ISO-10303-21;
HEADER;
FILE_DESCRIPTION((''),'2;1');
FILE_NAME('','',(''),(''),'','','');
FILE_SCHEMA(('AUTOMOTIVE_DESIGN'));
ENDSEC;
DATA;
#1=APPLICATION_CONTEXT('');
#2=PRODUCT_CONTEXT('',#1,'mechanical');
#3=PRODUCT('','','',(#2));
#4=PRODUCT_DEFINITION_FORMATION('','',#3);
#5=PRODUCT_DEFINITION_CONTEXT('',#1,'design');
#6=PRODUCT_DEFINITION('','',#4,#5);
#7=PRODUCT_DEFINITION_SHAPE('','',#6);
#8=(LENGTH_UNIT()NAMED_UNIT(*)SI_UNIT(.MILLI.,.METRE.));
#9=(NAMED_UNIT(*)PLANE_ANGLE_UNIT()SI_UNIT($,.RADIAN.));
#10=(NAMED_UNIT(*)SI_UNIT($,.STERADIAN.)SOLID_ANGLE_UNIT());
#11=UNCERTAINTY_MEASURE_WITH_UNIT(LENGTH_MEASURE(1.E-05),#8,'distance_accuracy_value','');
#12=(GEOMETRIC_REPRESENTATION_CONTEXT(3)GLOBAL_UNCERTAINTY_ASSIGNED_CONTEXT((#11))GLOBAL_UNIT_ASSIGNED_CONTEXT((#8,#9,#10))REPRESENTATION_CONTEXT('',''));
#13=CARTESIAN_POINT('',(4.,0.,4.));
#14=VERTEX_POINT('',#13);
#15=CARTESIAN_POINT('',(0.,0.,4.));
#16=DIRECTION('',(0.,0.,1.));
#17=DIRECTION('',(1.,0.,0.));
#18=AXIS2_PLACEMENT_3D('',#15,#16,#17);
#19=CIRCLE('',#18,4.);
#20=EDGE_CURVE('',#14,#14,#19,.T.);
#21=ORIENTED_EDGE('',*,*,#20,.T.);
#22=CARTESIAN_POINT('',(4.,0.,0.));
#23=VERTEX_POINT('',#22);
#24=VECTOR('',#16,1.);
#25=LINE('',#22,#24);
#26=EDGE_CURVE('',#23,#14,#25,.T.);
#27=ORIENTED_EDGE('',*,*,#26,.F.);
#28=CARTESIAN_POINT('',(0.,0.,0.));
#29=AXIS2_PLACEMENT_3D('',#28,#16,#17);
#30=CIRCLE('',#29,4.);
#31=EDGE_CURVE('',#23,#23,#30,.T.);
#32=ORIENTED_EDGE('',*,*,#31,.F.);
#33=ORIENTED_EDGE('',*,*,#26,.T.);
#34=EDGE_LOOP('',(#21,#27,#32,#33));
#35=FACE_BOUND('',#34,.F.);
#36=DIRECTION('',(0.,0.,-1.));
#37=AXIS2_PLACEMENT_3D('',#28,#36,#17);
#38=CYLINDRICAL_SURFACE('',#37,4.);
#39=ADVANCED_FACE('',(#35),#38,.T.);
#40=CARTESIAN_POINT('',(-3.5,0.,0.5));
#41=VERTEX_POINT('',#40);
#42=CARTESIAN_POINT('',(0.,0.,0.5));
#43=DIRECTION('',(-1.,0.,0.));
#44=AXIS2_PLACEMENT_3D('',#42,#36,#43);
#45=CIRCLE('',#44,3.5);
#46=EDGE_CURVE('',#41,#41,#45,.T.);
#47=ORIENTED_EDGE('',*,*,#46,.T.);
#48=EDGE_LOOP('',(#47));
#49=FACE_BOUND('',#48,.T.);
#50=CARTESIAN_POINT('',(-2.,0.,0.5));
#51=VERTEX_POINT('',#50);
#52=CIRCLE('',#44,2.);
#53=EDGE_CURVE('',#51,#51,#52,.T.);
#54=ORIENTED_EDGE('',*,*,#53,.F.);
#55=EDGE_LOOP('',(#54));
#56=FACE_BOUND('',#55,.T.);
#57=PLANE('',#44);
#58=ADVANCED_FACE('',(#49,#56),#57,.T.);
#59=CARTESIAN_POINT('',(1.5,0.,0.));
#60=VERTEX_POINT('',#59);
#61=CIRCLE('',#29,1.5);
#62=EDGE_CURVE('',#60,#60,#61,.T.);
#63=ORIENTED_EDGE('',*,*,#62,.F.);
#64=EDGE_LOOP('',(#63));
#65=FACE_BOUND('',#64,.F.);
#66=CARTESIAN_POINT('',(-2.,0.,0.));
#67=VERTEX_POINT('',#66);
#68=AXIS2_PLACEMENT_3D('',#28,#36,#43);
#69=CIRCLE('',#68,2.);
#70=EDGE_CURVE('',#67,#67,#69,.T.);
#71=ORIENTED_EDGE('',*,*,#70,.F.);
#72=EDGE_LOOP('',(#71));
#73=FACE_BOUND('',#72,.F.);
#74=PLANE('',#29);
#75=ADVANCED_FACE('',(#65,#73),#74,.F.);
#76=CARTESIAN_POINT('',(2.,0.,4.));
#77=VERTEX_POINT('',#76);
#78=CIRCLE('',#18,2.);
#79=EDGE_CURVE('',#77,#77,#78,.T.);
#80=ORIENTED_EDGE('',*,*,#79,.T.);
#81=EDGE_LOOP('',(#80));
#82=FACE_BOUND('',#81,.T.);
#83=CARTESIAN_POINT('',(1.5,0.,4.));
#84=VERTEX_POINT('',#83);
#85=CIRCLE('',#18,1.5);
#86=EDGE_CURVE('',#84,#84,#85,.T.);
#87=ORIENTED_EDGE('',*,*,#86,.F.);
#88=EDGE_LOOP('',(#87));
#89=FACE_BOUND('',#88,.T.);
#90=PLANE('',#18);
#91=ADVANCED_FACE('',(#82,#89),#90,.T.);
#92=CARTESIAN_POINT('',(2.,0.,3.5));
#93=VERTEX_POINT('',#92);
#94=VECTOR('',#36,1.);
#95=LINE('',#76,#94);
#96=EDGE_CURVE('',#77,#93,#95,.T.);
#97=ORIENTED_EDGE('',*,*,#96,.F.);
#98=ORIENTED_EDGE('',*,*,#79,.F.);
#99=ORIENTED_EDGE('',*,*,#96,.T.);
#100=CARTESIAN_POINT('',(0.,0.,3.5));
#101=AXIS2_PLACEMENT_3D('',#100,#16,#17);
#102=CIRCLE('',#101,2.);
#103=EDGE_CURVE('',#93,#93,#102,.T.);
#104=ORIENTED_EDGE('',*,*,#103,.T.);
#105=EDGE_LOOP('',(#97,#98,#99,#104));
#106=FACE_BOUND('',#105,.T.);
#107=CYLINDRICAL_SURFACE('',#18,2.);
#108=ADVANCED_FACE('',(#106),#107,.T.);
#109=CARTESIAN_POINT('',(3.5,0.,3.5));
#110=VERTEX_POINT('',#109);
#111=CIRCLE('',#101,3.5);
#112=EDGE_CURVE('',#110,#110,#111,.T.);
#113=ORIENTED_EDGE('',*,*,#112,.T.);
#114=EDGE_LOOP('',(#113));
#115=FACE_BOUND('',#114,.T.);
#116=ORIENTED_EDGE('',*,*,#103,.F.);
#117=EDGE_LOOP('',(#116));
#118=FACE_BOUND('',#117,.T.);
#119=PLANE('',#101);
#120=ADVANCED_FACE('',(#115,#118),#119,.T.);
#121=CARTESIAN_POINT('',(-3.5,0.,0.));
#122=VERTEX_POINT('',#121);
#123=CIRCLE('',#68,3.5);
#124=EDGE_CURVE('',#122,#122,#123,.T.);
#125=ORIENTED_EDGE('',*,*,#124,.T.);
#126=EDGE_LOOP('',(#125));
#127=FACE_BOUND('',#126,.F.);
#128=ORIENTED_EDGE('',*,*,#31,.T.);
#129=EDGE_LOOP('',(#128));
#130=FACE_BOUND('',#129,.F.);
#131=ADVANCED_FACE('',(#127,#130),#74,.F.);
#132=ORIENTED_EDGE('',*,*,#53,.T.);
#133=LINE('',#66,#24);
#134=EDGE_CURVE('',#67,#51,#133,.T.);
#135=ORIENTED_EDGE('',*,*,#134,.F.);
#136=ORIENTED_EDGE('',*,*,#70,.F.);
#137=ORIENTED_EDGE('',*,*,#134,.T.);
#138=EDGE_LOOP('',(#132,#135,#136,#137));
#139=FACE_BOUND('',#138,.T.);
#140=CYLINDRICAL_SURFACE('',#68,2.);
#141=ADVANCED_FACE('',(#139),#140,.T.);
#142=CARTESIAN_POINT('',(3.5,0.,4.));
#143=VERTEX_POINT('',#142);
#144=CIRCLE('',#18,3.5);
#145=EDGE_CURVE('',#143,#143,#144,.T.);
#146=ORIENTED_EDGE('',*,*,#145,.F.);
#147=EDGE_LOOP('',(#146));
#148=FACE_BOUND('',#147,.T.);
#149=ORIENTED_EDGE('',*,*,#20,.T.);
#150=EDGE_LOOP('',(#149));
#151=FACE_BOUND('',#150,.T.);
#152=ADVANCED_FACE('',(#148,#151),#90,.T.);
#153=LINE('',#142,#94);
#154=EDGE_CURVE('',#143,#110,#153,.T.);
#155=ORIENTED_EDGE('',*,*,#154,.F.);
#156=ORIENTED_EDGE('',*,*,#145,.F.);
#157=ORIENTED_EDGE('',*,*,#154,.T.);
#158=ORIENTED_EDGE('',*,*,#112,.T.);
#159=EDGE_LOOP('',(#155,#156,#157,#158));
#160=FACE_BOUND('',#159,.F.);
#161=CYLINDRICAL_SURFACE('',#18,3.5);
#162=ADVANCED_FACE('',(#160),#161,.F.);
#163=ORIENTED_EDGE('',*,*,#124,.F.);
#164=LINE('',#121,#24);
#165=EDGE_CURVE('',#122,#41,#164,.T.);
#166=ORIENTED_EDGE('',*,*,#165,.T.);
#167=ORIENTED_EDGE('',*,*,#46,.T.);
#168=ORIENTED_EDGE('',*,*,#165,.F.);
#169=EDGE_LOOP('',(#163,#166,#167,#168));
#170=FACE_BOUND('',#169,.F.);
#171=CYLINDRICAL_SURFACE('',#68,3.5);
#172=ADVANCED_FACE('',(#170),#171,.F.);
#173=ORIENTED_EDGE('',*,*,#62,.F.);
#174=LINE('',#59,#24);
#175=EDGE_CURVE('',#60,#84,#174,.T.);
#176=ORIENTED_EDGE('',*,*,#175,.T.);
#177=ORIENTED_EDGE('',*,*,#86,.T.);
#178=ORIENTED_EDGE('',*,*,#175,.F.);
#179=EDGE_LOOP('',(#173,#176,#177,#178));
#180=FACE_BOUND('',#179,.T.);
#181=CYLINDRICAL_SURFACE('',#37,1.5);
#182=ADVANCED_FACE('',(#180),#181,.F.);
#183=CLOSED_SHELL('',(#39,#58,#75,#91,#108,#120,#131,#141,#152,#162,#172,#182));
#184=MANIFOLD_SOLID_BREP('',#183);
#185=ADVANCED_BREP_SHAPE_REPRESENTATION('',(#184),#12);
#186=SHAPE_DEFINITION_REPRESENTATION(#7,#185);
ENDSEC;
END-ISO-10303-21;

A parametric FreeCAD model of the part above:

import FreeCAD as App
import Part
import Sketcher

doc = App.newDocument("Part")
body = doc.addObject("PartDesign::Body", "Body")

# Sketch on XY plane
sketch1 = body.newObject("Sketcher::SketchObject", "Sketch")
sketch1.AttachmentSupport = (doc.getObject("XY_Plane"), [""])
sketch1.MapMode = "FlatFace"
sketch1.addGeometry([
    Part.Circle(App.Vector(0, 0, 0), App.Vector(0, 0, 1), 4),
    Part.Circle(App.Vector(0, 0, 0), App.Vector(0, 0, 1), 1.5),
], False)
sketch1.addConstraint([
    Sketcher.Constraint("Coincident", 0, 3, -1, 1),
    Sketcher.Constraint("Coincident", 1, 3, -1, 1),
    Sketcher.Constraint("Diameter", 0, 8.0),
    Sketcher.Constraint("Diameter", 1, 3.0),
])
pad1 = body.newObject("PartDesign::Pad", "Pad")
pad1.Profile = sketch1
pad1.Length = 4

# Sketch on XY plane
sketch2 = body.newObject("Sketcher::SketchObject", "Sketch001")
sketch2.AttachmentSupport = (doc.getObject("XY_Plane"), [""])
sketch2.MapMode = "FlatFace"
sketch2.AttachmentOffset = App.Placement(App.Vector(0, 0, 4), App.Rotation())
sketch2.addGeometry([
    Part.Circle(App.Vector(0, 0, 0), App.Vector(0, 0, 1), 3.5),
    Part.Circle(App.Vector(0, 0, 0), App.Vector(0, 0, 1), 2),
], False)
sketch2.addConstraint([
    Sketcher.Constraint("Coincident", 0, 3, -1, 1),
    Sketcher.Constraint("Coincident", 1, 3, -1, 1),
    Sketcher.Constraint("Diameter", 0, 7.0),
    Sketcher.Constraint("Diameter", 1, 4.0),
])
pocket1 = body.newObject("PartDesign::Pocket", "Pocket")
pocket1.Profile = sketch2
pocket1.Length = 0.5

# Sketch on XY plane
sketch3 = body.newObject("Sketcher::SketchObject", "Sketch002")
sketch3.AttachmentSupport = (doc.getObject("XY_Plane"), [""])
sketch3.MapMode = "FlatFace"
sketch3.addGeometry([
    Part.Circle(App.Vector(0, 0, 0), App.Vector(0, 0, 1), 3.5),
    Part.Circle(App.Vector(0, 0, 0), App.Vector(0, 0, 1), 2),
], False)
sketch3.addConstraint([
    Sketcher.Constraint("Coincident", 0, 3, -1, 1),
    Sketcher.Constraint("Coincident", 1, 3, -1, 1),
    Sketcher.Constraint("Diameter", 0, 7.0),
    Sketcher.Constraint("Diameter", 1, 4.0),
])
pocket2 = body.newObject("PartDesign::Pocket", "Pocket001")
pocket2.Profile = sketch3
pocket2.Length = 0.5
pocket2.Reversed = True

doc.recompute()
